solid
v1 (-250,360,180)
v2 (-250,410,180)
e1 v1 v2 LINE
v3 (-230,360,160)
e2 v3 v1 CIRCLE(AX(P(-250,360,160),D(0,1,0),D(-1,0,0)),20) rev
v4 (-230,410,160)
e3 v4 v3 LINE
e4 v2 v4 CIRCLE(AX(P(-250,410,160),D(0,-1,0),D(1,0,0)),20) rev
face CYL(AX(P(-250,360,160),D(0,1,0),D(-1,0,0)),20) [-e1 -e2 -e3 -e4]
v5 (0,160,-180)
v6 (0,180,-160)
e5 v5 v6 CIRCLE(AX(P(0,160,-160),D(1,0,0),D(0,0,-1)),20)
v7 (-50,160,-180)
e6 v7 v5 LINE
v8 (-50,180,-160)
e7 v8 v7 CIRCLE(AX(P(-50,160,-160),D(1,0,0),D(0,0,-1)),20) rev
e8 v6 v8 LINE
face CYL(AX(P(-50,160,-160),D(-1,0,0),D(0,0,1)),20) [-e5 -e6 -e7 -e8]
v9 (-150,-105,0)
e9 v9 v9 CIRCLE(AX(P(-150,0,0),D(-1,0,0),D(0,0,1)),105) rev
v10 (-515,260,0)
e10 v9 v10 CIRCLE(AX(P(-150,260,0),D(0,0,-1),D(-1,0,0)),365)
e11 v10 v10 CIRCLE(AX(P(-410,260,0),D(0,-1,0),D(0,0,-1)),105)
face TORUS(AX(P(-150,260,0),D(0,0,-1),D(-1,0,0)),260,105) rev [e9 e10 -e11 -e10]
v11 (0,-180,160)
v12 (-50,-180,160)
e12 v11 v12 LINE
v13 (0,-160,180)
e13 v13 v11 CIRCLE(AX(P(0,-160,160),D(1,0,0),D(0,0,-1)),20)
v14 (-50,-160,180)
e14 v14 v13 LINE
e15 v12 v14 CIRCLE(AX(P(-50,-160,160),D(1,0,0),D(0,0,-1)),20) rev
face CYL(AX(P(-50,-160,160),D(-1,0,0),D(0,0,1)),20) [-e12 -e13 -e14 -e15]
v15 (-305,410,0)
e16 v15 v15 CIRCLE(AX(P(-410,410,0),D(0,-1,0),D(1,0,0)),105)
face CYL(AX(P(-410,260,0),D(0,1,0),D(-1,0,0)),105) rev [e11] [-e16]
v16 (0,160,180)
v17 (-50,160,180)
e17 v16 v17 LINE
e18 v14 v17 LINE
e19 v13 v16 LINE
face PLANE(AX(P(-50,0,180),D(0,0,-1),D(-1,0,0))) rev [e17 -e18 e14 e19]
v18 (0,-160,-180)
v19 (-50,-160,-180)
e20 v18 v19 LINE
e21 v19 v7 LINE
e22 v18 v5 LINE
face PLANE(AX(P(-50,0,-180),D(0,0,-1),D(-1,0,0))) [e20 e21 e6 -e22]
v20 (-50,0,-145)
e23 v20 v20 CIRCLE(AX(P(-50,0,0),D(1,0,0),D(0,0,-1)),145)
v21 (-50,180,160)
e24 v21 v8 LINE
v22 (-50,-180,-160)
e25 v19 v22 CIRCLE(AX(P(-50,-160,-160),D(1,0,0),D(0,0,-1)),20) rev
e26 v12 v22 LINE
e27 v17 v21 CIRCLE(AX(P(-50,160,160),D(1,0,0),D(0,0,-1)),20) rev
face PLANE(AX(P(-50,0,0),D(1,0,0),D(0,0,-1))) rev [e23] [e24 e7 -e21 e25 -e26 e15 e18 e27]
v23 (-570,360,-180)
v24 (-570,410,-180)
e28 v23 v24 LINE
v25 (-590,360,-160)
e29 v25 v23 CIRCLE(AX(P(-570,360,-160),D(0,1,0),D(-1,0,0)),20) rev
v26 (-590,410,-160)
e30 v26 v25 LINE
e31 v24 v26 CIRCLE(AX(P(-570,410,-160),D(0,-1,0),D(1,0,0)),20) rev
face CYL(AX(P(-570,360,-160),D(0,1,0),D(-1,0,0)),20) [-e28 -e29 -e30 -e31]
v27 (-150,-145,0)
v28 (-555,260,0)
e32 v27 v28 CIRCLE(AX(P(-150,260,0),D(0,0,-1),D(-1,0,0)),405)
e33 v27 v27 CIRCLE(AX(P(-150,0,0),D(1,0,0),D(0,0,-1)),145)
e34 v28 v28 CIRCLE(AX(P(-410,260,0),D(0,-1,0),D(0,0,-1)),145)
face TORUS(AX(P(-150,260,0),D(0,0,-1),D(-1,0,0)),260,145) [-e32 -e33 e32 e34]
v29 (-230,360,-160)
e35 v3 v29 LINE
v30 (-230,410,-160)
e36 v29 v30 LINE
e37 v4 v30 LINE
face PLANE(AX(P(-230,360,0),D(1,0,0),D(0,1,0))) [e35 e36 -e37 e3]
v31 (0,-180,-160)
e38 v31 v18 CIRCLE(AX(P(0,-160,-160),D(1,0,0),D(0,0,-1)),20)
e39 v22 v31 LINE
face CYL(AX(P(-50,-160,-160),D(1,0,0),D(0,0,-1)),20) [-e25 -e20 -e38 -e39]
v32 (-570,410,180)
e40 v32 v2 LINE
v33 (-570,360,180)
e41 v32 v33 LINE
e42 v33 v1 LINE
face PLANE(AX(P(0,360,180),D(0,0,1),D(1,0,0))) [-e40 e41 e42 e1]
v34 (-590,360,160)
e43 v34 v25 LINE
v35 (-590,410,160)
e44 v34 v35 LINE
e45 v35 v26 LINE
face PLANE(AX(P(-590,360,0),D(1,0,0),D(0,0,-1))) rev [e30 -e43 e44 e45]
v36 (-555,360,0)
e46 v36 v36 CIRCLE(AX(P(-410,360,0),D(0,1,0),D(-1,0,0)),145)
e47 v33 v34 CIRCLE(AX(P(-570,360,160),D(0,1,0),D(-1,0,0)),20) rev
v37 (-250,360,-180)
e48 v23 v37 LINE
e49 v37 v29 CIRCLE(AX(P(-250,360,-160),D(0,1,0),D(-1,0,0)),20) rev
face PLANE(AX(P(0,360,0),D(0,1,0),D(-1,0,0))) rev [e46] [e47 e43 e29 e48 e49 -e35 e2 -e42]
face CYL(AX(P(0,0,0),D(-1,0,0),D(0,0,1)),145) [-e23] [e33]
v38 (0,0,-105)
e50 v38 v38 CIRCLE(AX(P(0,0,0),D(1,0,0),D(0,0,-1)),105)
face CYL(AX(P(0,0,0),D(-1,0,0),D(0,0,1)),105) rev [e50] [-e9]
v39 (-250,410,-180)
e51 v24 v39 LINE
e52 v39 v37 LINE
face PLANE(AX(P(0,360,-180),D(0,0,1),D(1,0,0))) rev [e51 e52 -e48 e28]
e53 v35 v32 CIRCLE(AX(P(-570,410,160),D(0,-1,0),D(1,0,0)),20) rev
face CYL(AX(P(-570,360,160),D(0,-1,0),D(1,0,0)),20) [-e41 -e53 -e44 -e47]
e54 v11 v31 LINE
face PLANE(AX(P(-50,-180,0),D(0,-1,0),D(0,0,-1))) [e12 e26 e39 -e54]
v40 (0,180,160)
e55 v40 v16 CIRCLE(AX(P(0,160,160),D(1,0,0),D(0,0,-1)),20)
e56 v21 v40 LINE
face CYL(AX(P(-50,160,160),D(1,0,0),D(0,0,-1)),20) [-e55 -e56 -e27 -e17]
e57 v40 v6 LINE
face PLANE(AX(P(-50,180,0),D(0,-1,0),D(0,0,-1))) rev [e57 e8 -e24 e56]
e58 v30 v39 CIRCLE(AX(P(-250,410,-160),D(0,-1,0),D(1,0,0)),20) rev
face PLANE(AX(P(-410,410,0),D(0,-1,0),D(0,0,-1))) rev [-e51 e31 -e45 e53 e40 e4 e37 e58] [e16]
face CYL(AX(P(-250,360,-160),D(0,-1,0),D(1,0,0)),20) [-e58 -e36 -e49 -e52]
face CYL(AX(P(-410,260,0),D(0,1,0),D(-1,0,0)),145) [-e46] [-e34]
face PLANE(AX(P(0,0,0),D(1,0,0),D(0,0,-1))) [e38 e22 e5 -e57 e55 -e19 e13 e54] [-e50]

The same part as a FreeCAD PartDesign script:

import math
import FreeCAD as App
import Part
import Sketcher
from FreeCAD import Vector


def edges_at(feature, points):
    """Names of the edges that pass closest to the given points."""
    edges = feature.Shape.Edges
    near = lambda p: min(range(len(edges)), key=lambda i: edges[i].distToShape(Part.Vertex(*p))[0])
    return sorted({f"Edge{near(p) + 1}" for p in points})


def add_polygon(sketch, points):
    """Adds a closed chain of lines whose ends are joined by coincident constraints."""
    first, n = sketch.GeometryCount, len(points)
    for a, b in zip(points, points[1:] + points[:1]):
        sketch.addGeometry(Part.LineSegment(App.Vector(*a, 0), App.Vector(*b, 0)), False)
    for i in range(n):
        sketch.addConstraint(Sketcher.Constraint("Coincident", first + i, 2, first + (i + 1) % n, 1))

doc = App.newDocument("Part")
body = doc.addObject("PartDesign::Body", "Body")

# Sketch on YZ plane
sketch1 = body.newObject("Sketcher::SketchObject", "Sketch")
sketch1.AttachmentSupport = (doc.getObject("YZ_Plane"), [""])
sketch1.MapMode = "FlatFace"
sketch1.addGeometry(Part.Circle(Vector(0, 0, 0), Vector(0, 0, 1), 145), False)
sketch1.addGeometry(Part.Circle(Vector(0, 0, 0), Vector(0, 0, 1), 105), False)
sketch1.addConstraint(Sketcher.Constraint("Coincident", 0, 3, -1, 1))
sketch1.addConstraint(Sketcher.Constraint("Coincident", 1, 3, -1, 1))
sketch1.addConstraint(Sketcher.Constraint("Diameter", 0, 290.0))
sketch1.addConstraint(Sketcher.Constraint("Diameter", 1, 210.0))

# Sketch on XY plane
sketch2 = body.newObject("Sketcher::SketchObject", "Sketch001")
sketch2.AttachmentSupport = (doc.getObject("XY_Plane"), [""])
sketch2.MapMode = "FlatFace"
sketch2.addGeometry(Part.LineSegment(Vector(0, 0, 0), Vector(-150, 0, 0)), False)
sketch2.addGeometry(Part.ArcOfCircle(Part.Circle(Vector(-150, 260, 0), Vector(0, 0, 1), 260), math.radians(180), math.radians(270)), False)
sketch2.addGeometry(Part.LineSegment(Vector(-410, 260, 0), Vector(-410, 410, 0)), False)
sketch2.addConstraint(Sketcher.Constraint("Tangent", 0, 2, 1, 2))
sketch2.addConstraint(Sketcher.Constraint("Tangent", 1, 1, 2, 1))
sketch2.addConstraint(Sketcher.Constraint("Horizontal", 0))
sketch2.addConstraint(Sketcher.Constraint("Vertical", 2))
sketch2.addConstraint(Sketcher.Constraint("Coincident", 0, 1, -1, 1))
sketch2.addConstraint(Sketcher.Constraint("Equal", 0, 2))
sketch2.addConstraint(Sketcher.Constraint("Radius", 1, 260.0))
sketch2.addConstraint(Sketcher.Constraint("DistanceX", 0, 2, 0, 1, 150.0))
doc.recompute()

additivepipe = body.newObject("PartDesign::AdditivePipe", "AdditivePipe")
additivepipe.Profile = sketch1
additivepipe.Spine = (sketch2, ["Edge1", "Edge2", "Edge3"])

# Sketch on YZ plane
sketch3 = body.newObject("Sketcher::SketchObject", "Sketch002")
sketch3.AttachmentSupport = (doc.getObject("YZ_Plane"), [""])
sketch3.MapMode = "FlatFace"
sketch3.AttachmentOffset = App.Placement(Vector(0, 0, -50), App.Rotation())
add_polygon(sketch3, [(180, 180), (-180, 180), (-180, -180), (180, -180)])  # lines 0-3
sketch3.addGeometry(Part.Circle(Vector(0, 0, 0), Vector(0, 0, 1), 145), False)  # 4
sketch3.addConstraint(Sketcher.Constraint("Horizontal", 0))
sketch3.addConstraint(Sketcher.Constraint("Vertical", 1))
sketch3.addConstraint(Sketcher.Constraint("Horizontal", 2))
sketch3.addConstraint(Sketcher.Constraint("Vertical", 3))
sketch3.addConstraint(Sketcher.Constraint("Coincident", 4, 3, -1, 1))
sketch3.addConstraint(Sketcher.Constraint("Symmetric", 0, 2, 2, 2, -1, 1))
sketch3.addConstraint(Sketcher.Constraint("Equal", 2, 1))
sketch3.addConstraint(Sketcher.Constraint("Diameter", 4, 290.0))
sketch3.addConstraint(Sketcher.Constraint("DistanceX", 0, 2, 0, 1, 360.0))
pad1 = body.newObject("PartDesign::Pad", "Pad")
pad1.Profile = sketch3
pad1.Length = 50
doc.recompute()

fillet = body.newObject("PartDesign::Fillet", "Fillet")
fillet.Base = (pad1, edges_at(pad1, [
    (-25, -180, -180),
    (-25, -180, 180),
    (-25, 180, 180),
    (-25, 180, -180),
]))
fillet.Radius = 20

# Sketch on XZ plane
sketch4 = body.newObject("Sketcher::SketchObject", "Sketch003")
sketch4.AttachmentSupport = (doc.getObject("XZ_Plane"), [""])
sketch4.MapMode = "FlatFace"
sketch4.AttachmentOffset = App.Placement(Vector(0, 0, -410), App.Rotation())
add_polygon(sketch4, [(-590, -180), (-590, 180), (-230, 180), (-230, -180)])  # lines 0-3
sketch4.addGeometry(Part.Circle(Vector(-410, 0, 0), Vector(0, 0, 1), 145), False)  # 4
sketch4.addConstraint(Sketcher.Constraint("Vertical", 0))
sketch4.addConstraint(Sketcher.Constraint("Horizontal", 1))
sketch4.addConstraint(Sketcher.Constraint("Vertical", 2))
sketch4.addConstraint(Sketcher.Constraint("Horizontal", 3))
sketch4.addConstraint(Sketcher.Constraint("PointOnObject", 4, 3, -1))
sketch4.addConstraint(Sketcher.Constraint("Equal", 3, 0))
sketch4.addConstraint(Sketcher.Constraint("Diameter", 4, 290.0))
sketch4.addConstraint(Sketcher.Constraint("DistanceX", 1, 1, 1, 2, 360.0))
sketch4.addConstraint(Sketcher.Constraint("DistanceX", 4, 3, -1, 1, 410.0))
sketch4.addConstraint(Sketcher.Constraint("DistanceX", 0, 2, -1, 1, 590.0))
sketch4.addConstraint(Sketcher.Constraint("DistanceY", -1, 1, 0, 2, 180.0))
pad2 = body.newObject("PartDesign::Pad", "Pad001")
pad2.Profile = sketch4
pad2.Length = 50
doc.recompute()

fillet2 = body.newObject("PartDesign::Fillet", "Fillet001")
fillet2.Base = (pad2, edges_at(pad2, [
    (-230, 385, 180),
    (-590, 385, 180),
    (-590, 385, -180),
    (-230, 385, -180),
]))
fillet2.Radius = 20

# Sketch on YZ plane
sketch5 = body.newObject("Sketcher::SketchObject", "Sketch004")
sketch5.AttachmentSupport = (doc.getObject("YZ_Plane"), [""])
sketch5.MapMode = "FlatFace"
sketch5.addGeometry(Part.Circle(Vector(130, 130, 0), Vector(0, 0, 1), 30), False)
sketch5.addConstraint(Sketcher.Constraint("Diameter", 0, 60.0))
sketch5.addConstraint(Sketcher.Constraint("DistanceX", -1, 1, 0, 3, 130.0))
sketch5.addConstraint(Sketcher.Constraint("DistanceY", -1, 1, 0, 3, 130.0))
pad3 = body.newObject("PartDesign::Pad", "Pad002")
pad3.Profile = sketch5
pad3.Length = 10
pad3.Reversed = True

doc.recompute()
